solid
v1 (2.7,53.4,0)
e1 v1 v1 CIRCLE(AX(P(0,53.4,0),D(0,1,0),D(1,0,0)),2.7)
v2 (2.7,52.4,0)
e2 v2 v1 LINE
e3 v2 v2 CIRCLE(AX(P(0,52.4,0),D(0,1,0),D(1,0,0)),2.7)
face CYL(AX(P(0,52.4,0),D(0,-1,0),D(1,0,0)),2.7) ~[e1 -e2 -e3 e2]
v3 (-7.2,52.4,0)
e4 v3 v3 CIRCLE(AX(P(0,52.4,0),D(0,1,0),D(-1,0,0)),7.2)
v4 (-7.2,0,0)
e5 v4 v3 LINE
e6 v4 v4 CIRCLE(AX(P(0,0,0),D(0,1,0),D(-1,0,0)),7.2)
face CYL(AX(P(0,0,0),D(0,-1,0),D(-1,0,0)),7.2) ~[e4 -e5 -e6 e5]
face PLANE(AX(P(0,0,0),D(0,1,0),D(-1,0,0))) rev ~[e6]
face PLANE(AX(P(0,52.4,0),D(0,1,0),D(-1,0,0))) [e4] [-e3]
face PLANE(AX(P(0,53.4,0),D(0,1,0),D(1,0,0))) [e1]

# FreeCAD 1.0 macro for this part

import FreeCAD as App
import Part
import Sketcher

doc = App.newDocument("Part")
params = doc.addObject("Spreadsheet::Sheet", "Params")
for row, (alias, value) in enumerate([
    ("sketch1_diameter", "14.4 mm"),
    ("pad1_length", "52.4 mm"),
    ("sketch2_diameter", "5.4 mm"),
    ("pad2_length", "1 mm"),
], start=1):
    params.set(f"A{row}", alias)
    params.set(f"B{row}", "=" + value)
    params.setAlias(f"B{row}", alias)

body = doc.addObject("PartDesign::Body", "Body")

# Sketch on XZ plane
sketch1 = doc.addObject("Sketcher::SketchObject", "Sketch")
body.addObject(sketch1)
sketch1.AttachmentSupport = (doc.XZ_Plane, [""])
sketch1.MapMode = "FlatFace"
sketch1.addGeometry(Part.Circle(App.Vector(0, 0, 0), App.Vector(0, 0, 1), 7), False)
sketch1.addConstraint(Sketcher.Constraint("Coincident", 0, 3, -1, 1))
sketch1.addConstraint(Sketcher.Constraint("Diameter", 0, 14.4))
sketch1.setExpression("Constraints[1]", "Params.sketch1_diameter")
pad1 = doc.addObject("PartDesign::Pad", "Pad")
body.addObject(pad1)
pad1.Profile = sketch1
pad1.setExpression("Length", "Params.pad1_length")
pad1.Reversed = True

# Sketch on XZ plane
sketch2 = doc.addObject("Sketcher::SketchObject", "Sketch001")
body.addObject(sketch2)
sketch2.AttachmentSupport = (doc.XZ_Plane, [""])
sketch2.MapMode = "FlatFace"
sketch2.AttachmentOffset = App.Placement(App.Vector(0, 0, -52.4), App.Rotation())
sketch2.addGeometry(Part.Circle(App.Vector(0, 0, 0), App.Vector(0, 0, 1), 2.7), False)
sketch2.addConstraint(Sketcher.Constraint("Coincident", 0, 3, -1, 1))
sketch2.addConstraint(Sketcher.Constraint("Diameter", 0, 5.4))
sketch2.setExpression("Constraints[1]", "Params.sketch2_diameter")
pad2 = doc.addObject("PartDesign::Pad", "Pad001")
body.addObject(pad2)
pad2.Profile = sketch2
pad2.setExpression("Length", "Params.pad2_length")
pad2.Reversed = True

doc.recompute()
